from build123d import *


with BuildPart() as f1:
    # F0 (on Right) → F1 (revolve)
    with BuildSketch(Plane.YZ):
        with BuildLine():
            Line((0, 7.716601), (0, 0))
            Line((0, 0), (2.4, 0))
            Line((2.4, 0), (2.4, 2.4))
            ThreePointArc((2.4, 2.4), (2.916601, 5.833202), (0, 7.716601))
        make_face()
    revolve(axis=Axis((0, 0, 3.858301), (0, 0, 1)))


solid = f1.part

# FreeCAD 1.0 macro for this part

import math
import FreeCAD as App
import Part
import Sketcher

V = App.Vector

doc = App.newDocument("Part")
body = doc.addObject("PartDesign::Body", "Body")

# Sketch on YZ plane
sketch1 = body.newObject("Sketcher::SketchObject", "Sketch")
sketch1.AttachmentSupport = (doc.getObject("YZ_Plane"), [""])
sketch1.MapMode = "FlatFace"
sketch1.addGeometry([
    Part.LineSegment(V(0, 7.7, 0), V(0, 0, 0)),
    Part.LineSegment(V(0, 0, 0), V(2.4, 0, 0)),
    Part.LineSegment(V(2.4, 0, 0), V(2.4, 2.4, 0)),
    Part.ArcOfCircle(Part.Circle(V(0, 4.5, 0), V(0, 0, 1), 3.2), math.radians(-41), math.radians(90)),
], False)
sketch1.addConstraint([
    Sketcher.Constraint("Coincident", 0, 2, 1, 1),
    Sketcher.Constraint("Coincident", 1, 2, 2, 1),
    Sketcher.Constraint("Coincident", 2, 2, 3, 1),
    Sketcher.Constraint("Coincident", 3, 2, 0, 1),
    Sketcher.Constraint("Vertical", 0),
    Sketcher.Constraint("Horizontal", 1),
    Sketcher.Constraint("Vertical", 2),
    Sketcher.Constraint("Coincident", 0, 2, -1, 1),
    Sketcher.Constraint("PointOnObject", 3, 3, -2),
    Sketcher.Constraint("Equal", 1, 2),
    Sketcher.Constraint("Radius", 3, 3.2),
    Sketcher.Constraint("DistanceX", 1, 1, 1, 2, 2.4),
])
revolution = body.newObject("PartDesign::Revolution", "Revolution")
revolution.Profile = sketch1
revolution.ReferenceAxis = (sketch1, ["V_Axis"])
revolution.Angle = 360

doc.recompute()
